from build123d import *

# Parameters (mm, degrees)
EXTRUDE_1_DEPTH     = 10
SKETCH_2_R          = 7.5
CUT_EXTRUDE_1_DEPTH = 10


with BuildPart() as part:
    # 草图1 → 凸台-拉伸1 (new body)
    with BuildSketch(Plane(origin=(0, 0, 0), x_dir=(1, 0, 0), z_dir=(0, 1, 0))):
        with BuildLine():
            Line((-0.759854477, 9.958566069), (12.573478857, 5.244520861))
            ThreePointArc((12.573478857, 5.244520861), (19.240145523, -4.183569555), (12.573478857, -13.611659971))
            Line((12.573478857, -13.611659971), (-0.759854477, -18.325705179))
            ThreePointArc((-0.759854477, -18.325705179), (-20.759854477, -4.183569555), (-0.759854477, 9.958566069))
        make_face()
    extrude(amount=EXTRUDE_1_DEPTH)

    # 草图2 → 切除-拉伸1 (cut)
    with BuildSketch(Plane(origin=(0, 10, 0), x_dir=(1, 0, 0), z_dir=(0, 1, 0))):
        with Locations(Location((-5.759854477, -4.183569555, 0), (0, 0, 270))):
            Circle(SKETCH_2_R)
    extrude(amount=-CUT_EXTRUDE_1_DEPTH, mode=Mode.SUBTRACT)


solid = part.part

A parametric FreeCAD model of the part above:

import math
import FreeCAD as App
import Part
import Sketcher

V = App.Vector

doc = App.newDocument("Part")
body = doc.addObject("PartDesign::Body", "Body")

sketch1 = body.newObject("Sketcher::SketchObject", "Sketch")
sketch1.AttachmentSupport = (doc.getObject("XZ_Plane"), [""])
sketch1.MapMode = "FlatFace"
sketch1.addGeometry([
    Part.LineSegment(V(13, -5, 0), V(-1, -10, 0)),
    Part.ArcOfCircle(Part.Circle(V(-6, 4, 0), V(0, 0, 1), 15), math.radians(71), math.radians(289)),
    Part.LineSegment(V(-1, 18, 0), V(13, 14, 0)),
    Part.ArcOfCircle(Part.Circle(V(9, 4, 0), V(0, 0, 1), 10), math.radians(-71), math.radians(71)),
], False)
sketch1.addConstraint([
    Sketcher.Constraint("Tangent", 0, 2, 1, 2),
    Sketcher.Constraint("Tangent", 1, 1, 2, 1),
    Sketcher.Constraint("Tangent", 2, 2, 3, 2),
    Sketcher.Constraint("Tangent", 3, 1, 0, 1),
    Sketcher.Constraint("Horizontal", 1, 3, 3, 3),
    Sketcher.Constraint("Radius", 1, 15.0),
    Sketcher.Constraint("Radius", 3, 10.0),
    Sketcher.Constraint("DistanceX", 1, 3, 3, 3, 15.0),
    Sketcher.Constraint("DistanceY", -1, 1, 1, 3, 4.18357),
    Sketcher.Constraint("DistanceX", -1, 1, 2, 2, 12.573479),
])
pad1 = body.newObject("PartDesign::Pad", "Pad")
pad1.Profile = sketch1
pad1.Length = 10
pad1.Reversed = True

sketch2 = body.newObject("Sketcher::SketchObject", "Sketch001")
sketch2.AttachmentSupport = (doc.getObject("XZ_Plane"), [""])
sketch2.MapMode = "FlatFace"
sketch2.AttachmentOffset = App.Placement(V(0, 0, -10), App.Rotation())
sketch2.addGeometry(Part.Circle(V(-6, 4, 0), V(0, 0, 1), 8), False)
sketch2.addConstraint([
    Sketcher.Constraint("Diameter", 0, 15.0),
    Sketcher.Constraint("DistanceY", -1, 1, 0, 3, 4.18357),
    Sketcher.Constraint("DistanceX", 0, 3, -1, 1, 5.759854),
])
pocket1 = body.newObject("PartDesign::Pocket", "Pocket")
pocket1.Profile = sketch2
pocket1.Length = 10
pocket1.Reversed = True

doc.recompute()
